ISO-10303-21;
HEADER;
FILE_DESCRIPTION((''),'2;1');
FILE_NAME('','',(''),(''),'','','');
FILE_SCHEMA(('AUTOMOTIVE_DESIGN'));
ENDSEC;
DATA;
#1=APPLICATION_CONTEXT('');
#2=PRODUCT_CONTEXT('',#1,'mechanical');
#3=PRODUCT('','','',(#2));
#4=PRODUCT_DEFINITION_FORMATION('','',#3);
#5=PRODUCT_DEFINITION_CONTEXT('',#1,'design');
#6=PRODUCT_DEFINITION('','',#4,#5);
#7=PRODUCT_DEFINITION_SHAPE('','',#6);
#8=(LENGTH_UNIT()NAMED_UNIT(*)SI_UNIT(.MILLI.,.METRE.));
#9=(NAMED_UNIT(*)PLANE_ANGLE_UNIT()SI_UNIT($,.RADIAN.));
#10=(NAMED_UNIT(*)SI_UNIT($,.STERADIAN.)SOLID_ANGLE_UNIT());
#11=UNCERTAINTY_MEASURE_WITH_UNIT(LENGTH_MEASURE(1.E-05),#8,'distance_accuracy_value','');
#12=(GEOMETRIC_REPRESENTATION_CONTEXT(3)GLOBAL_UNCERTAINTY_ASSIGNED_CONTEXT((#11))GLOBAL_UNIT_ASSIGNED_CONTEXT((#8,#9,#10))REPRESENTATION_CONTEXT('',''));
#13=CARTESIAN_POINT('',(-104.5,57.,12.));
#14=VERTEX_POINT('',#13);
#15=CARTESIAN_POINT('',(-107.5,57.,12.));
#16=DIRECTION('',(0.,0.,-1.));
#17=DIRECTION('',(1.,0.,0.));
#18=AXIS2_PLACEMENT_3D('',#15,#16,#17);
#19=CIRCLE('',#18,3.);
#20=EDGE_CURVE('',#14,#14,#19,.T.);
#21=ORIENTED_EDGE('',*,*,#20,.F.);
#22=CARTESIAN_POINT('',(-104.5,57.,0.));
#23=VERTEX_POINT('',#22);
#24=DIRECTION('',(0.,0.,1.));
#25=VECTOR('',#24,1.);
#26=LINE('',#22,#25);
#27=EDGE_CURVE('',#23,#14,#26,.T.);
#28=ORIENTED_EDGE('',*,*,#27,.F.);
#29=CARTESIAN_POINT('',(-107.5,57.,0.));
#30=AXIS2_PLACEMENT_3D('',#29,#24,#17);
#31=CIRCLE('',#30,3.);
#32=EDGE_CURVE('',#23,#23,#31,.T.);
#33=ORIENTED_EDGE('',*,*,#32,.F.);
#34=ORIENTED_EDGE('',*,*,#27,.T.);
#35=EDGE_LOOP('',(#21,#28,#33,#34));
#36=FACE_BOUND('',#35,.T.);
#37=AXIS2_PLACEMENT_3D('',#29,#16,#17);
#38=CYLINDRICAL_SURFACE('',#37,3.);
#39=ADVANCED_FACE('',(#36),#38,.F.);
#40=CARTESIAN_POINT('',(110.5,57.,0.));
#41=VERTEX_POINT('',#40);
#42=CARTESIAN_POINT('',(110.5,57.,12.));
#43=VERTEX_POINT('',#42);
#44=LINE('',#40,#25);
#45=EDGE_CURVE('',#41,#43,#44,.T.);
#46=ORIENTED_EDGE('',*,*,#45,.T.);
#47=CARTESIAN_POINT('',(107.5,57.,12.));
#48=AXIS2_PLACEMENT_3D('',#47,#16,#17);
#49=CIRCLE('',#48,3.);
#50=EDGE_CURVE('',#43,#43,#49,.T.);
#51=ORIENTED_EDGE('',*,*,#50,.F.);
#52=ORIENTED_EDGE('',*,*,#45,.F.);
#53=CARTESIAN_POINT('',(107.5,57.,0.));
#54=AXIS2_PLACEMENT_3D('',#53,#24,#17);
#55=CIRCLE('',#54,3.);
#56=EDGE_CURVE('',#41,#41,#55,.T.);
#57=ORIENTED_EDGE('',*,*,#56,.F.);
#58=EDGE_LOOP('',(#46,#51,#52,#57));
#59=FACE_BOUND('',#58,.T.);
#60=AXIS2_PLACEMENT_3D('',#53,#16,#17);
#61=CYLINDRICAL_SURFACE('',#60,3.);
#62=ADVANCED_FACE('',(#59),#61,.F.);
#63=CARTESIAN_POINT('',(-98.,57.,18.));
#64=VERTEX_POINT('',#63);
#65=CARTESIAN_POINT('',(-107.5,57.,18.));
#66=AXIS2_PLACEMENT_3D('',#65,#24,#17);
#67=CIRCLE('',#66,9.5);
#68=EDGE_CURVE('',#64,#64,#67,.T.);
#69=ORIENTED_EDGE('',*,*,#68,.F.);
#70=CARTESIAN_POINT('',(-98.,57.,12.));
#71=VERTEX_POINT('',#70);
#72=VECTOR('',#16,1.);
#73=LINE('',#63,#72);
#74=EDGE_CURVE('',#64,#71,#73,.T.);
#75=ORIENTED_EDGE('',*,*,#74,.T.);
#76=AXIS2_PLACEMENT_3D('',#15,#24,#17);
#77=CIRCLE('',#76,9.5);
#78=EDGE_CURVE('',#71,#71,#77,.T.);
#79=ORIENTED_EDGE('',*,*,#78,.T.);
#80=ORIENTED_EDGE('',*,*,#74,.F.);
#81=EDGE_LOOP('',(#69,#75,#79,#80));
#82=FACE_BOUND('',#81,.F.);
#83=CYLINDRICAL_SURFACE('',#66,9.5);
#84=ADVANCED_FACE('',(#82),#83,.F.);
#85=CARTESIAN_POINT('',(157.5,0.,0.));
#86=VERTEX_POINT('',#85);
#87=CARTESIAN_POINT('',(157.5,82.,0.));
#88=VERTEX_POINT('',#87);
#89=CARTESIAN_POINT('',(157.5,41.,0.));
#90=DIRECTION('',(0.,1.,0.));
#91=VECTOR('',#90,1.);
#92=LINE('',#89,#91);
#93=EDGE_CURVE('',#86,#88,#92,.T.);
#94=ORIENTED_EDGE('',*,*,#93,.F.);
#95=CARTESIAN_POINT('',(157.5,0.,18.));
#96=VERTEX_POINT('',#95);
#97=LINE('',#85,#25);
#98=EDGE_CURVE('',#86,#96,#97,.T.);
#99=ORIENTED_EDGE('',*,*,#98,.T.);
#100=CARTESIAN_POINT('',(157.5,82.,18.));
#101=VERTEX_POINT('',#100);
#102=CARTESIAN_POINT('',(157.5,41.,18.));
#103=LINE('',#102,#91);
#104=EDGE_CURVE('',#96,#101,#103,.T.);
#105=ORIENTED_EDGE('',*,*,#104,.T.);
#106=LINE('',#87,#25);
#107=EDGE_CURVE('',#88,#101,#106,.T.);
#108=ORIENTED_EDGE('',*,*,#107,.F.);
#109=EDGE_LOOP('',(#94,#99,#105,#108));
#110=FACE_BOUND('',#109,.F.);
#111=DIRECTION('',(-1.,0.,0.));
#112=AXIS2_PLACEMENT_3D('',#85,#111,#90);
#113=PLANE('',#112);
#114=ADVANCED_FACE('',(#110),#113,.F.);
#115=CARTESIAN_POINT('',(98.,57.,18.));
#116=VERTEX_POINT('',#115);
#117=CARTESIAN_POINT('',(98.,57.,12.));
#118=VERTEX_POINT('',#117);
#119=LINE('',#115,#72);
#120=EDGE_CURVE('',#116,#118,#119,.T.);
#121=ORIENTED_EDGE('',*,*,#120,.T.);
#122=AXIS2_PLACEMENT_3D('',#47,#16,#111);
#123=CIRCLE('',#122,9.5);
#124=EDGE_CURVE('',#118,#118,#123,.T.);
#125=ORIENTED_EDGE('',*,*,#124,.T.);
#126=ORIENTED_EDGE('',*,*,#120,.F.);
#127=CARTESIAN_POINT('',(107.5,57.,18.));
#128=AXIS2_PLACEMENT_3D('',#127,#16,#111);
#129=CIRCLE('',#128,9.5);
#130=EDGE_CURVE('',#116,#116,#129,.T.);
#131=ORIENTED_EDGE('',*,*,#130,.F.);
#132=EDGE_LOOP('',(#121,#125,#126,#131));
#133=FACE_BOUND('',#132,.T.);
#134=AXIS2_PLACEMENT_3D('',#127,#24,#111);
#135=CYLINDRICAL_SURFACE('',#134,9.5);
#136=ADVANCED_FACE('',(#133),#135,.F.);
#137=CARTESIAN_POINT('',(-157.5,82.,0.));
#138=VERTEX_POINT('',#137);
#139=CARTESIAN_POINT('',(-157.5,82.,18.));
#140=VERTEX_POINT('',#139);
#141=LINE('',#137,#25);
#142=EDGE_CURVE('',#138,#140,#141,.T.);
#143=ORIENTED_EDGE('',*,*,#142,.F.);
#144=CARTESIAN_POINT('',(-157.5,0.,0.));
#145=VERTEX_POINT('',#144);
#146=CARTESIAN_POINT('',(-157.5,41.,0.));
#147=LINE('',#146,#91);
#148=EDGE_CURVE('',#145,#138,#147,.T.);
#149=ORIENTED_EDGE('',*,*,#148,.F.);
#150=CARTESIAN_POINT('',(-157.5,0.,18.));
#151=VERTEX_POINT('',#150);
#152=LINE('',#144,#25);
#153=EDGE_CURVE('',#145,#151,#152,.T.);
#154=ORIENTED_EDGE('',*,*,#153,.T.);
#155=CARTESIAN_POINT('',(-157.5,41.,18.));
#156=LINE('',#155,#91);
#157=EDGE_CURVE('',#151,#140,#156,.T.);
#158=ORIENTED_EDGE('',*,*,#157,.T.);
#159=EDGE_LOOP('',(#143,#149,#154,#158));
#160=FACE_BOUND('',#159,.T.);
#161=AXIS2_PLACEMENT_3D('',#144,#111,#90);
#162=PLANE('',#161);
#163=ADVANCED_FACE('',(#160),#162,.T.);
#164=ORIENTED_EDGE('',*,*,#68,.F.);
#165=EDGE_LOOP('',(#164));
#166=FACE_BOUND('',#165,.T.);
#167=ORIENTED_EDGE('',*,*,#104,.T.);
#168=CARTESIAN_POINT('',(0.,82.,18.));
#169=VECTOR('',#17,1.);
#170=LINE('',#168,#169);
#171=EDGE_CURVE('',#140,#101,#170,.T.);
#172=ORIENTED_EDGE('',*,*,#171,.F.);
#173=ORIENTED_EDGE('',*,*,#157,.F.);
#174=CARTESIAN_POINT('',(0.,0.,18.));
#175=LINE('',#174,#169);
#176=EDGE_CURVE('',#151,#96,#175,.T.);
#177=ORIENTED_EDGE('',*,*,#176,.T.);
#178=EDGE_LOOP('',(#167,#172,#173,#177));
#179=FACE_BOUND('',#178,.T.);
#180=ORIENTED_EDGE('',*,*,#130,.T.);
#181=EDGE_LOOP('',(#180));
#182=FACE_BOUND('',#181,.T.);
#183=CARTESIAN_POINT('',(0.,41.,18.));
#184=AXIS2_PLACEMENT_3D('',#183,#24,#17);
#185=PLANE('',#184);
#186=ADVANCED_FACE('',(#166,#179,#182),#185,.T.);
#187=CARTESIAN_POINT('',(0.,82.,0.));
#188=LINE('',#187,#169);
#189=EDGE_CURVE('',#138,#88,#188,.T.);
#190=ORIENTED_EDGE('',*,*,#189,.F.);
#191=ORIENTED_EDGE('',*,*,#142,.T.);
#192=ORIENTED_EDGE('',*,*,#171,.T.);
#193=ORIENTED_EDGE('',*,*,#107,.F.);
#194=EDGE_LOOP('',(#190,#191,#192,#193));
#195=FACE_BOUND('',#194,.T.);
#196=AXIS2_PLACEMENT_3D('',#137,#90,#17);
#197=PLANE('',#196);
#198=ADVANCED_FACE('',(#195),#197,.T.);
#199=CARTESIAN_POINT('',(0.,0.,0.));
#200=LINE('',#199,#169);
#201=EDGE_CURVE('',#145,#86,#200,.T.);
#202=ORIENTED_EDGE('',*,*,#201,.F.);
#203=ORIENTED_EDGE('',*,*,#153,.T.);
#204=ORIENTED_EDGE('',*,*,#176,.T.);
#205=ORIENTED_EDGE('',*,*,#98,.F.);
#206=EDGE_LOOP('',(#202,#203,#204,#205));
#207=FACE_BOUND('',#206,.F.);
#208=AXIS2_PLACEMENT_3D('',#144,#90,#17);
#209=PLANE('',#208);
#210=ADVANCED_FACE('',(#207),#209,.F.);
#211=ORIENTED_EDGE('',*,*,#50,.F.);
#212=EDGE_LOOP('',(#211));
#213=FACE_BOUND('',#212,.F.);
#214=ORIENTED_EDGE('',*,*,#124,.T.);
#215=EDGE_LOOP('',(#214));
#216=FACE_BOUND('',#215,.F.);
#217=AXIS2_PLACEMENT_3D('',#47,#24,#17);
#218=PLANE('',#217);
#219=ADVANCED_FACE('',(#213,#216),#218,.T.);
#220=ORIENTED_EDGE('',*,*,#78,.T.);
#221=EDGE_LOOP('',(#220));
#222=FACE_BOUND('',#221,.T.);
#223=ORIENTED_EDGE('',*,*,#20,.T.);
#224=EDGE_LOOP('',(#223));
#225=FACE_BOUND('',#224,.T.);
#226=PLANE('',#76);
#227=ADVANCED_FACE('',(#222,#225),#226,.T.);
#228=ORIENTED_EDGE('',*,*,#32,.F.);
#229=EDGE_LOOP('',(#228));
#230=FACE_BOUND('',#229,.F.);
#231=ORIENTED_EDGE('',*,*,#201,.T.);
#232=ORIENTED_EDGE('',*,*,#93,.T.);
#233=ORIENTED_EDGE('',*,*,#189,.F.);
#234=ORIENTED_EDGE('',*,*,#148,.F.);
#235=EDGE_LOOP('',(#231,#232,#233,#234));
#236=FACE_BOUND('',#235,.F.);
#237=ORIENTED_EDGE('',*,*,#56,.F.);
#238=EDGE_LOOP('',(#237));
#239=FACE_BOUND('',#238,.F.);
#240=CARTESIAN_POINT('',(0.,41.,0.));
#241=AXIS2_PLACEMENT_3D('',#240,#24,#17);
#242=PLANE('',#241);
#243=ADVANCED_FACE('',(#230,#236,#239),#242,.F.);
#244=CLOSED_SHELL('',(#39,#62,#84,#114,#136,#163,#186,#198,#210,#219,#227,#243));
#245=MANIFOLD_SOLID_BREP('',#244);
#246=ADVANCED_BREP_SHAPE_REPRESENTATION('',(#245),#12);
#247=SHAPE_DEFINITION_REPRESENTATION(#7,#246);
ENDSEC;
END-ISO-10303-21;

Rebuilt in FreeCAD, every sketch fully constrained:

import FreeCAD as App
import Part
import Sketcher
Q = App.Units.Quantity

doc = App.newDocument("Part")
body = doc.addObject("PartDesign::Body", "Body")

sketch1 = body.newObject("Sketcher::SketchObject", "Sketch")
sketch1.AttachmentSupport = (doc.getObject("XY_Plane"), [""])
sketch1.MapMode = "FlatFace"
sketch1.addGeometry([
    Part.LineSegment(App.Vector(-157.5, 82, 0), App.Vector(-157.5, 0, 0)),
    Part.LineSegment(App.Vector(-157.5, 0, 0), App.Vector(157.5, 0, 0)),
    Part.LineSegment(App.Vector(157.5, 0, 0), App.Vector(157.5, 82, 0)),
    Part.LineSegment(App.Vector(157.5, 82, 0), App.Vector(-157.5, 82, 0)),
    Part.Circle(App.Vector(-107.5, 57, 0), App.Vector(0, 0, 1), 3),
    Part.Circle(App.Vector(107.5, 57, 0), App.Vector(0, 0, 1), 3),
], False)
sketch1.addConstraint([
    Sketcher.Constraint("Coincident", 0, 2, 1, 1),
    Sketcher.Constraint("Coincident", 1, 2, 2, 1),
    Sketcher.Constraint("Coincident", 2, 2, 3, 1),
    Sketcher.Constraint("Coincident", 3, 2, 0, 1),
    Sketcher.Constraint("Vertical", 0),
    Sketcher.Constraint("Horizontal", 1),
    Sketcher.Constraint("Vertical", 2),
    Sketcher.Constraint("Horizontal", 3),
    Sketcher.Constraint("Equal", 4, 5),
    Sketcher.Constraint("Symmetric", 0, 2, 1, 2, -1, 1),
    Sketcher.Constraint("Symmetric", 4, 3, 5, 3, -2),
    Sketcher.Constraint("Diameter", 4, Q("6 mm")),
    Sketcher.Constraint("DistanceX", 1, 1, 1, 2, Q("315 mm")),
    Sketcher.Constraint("DistanceY", 0, 2, 0, 1, Q("82 mm")),
    Sketcher.Constraint("DistanceY", -1, 1, 4, 3, Q("57 mm")),
    Sketcher.Constraint("DistanceX", 4, 3, 5, 3, Q("215 mm")),
])
pad1 = body.newObject("PartDesign::Pad", "Pad")
pad1.Profile = sketch1
pad1.Length = 18

sketch2 = body.newObject("Sketcher::SketchObject", "Sketch001")
sketch2.AttachmentSupport = (doc.getObject("XY_Plane"), [""])
sketch2.MapMode = "FlatFace"
sketch2.AttachmentOffset = App.Placement(App.Vector(0, 0, 18), App.Rotation())
sketch2.addGeometry(Part.Circle(App.Vector(-107.5, 57, 0), App.Vector(0, 0, 1), 9.5), False)
sketch2.addConstraint([
    Sketcher.Constraint("Diameter", 0, Q("19 mm")),
    Sketcher.Constraint("DistanceY", -1, 1, 0, 3, Q("57 mm")),
    Sketcher.Constraint("DistanceX", 0, 3, -1, 1, Q("107.5 mm")),
])
pocket1 = body.newObject("PartDesign::Pocket", "Pocket")
pocket1.Profile = sketch2
pocket1.Length = 6
doc.recompute()

mirrored = body.newObject("PartDesign::Mirrored", "Mirrored")
mirrored.Originals = [pocket1]
mirrored.MirrorPlane = (doc.getObject("YZ_Plane"), [""])
body.Tip = mirrored

doc.recompute()
